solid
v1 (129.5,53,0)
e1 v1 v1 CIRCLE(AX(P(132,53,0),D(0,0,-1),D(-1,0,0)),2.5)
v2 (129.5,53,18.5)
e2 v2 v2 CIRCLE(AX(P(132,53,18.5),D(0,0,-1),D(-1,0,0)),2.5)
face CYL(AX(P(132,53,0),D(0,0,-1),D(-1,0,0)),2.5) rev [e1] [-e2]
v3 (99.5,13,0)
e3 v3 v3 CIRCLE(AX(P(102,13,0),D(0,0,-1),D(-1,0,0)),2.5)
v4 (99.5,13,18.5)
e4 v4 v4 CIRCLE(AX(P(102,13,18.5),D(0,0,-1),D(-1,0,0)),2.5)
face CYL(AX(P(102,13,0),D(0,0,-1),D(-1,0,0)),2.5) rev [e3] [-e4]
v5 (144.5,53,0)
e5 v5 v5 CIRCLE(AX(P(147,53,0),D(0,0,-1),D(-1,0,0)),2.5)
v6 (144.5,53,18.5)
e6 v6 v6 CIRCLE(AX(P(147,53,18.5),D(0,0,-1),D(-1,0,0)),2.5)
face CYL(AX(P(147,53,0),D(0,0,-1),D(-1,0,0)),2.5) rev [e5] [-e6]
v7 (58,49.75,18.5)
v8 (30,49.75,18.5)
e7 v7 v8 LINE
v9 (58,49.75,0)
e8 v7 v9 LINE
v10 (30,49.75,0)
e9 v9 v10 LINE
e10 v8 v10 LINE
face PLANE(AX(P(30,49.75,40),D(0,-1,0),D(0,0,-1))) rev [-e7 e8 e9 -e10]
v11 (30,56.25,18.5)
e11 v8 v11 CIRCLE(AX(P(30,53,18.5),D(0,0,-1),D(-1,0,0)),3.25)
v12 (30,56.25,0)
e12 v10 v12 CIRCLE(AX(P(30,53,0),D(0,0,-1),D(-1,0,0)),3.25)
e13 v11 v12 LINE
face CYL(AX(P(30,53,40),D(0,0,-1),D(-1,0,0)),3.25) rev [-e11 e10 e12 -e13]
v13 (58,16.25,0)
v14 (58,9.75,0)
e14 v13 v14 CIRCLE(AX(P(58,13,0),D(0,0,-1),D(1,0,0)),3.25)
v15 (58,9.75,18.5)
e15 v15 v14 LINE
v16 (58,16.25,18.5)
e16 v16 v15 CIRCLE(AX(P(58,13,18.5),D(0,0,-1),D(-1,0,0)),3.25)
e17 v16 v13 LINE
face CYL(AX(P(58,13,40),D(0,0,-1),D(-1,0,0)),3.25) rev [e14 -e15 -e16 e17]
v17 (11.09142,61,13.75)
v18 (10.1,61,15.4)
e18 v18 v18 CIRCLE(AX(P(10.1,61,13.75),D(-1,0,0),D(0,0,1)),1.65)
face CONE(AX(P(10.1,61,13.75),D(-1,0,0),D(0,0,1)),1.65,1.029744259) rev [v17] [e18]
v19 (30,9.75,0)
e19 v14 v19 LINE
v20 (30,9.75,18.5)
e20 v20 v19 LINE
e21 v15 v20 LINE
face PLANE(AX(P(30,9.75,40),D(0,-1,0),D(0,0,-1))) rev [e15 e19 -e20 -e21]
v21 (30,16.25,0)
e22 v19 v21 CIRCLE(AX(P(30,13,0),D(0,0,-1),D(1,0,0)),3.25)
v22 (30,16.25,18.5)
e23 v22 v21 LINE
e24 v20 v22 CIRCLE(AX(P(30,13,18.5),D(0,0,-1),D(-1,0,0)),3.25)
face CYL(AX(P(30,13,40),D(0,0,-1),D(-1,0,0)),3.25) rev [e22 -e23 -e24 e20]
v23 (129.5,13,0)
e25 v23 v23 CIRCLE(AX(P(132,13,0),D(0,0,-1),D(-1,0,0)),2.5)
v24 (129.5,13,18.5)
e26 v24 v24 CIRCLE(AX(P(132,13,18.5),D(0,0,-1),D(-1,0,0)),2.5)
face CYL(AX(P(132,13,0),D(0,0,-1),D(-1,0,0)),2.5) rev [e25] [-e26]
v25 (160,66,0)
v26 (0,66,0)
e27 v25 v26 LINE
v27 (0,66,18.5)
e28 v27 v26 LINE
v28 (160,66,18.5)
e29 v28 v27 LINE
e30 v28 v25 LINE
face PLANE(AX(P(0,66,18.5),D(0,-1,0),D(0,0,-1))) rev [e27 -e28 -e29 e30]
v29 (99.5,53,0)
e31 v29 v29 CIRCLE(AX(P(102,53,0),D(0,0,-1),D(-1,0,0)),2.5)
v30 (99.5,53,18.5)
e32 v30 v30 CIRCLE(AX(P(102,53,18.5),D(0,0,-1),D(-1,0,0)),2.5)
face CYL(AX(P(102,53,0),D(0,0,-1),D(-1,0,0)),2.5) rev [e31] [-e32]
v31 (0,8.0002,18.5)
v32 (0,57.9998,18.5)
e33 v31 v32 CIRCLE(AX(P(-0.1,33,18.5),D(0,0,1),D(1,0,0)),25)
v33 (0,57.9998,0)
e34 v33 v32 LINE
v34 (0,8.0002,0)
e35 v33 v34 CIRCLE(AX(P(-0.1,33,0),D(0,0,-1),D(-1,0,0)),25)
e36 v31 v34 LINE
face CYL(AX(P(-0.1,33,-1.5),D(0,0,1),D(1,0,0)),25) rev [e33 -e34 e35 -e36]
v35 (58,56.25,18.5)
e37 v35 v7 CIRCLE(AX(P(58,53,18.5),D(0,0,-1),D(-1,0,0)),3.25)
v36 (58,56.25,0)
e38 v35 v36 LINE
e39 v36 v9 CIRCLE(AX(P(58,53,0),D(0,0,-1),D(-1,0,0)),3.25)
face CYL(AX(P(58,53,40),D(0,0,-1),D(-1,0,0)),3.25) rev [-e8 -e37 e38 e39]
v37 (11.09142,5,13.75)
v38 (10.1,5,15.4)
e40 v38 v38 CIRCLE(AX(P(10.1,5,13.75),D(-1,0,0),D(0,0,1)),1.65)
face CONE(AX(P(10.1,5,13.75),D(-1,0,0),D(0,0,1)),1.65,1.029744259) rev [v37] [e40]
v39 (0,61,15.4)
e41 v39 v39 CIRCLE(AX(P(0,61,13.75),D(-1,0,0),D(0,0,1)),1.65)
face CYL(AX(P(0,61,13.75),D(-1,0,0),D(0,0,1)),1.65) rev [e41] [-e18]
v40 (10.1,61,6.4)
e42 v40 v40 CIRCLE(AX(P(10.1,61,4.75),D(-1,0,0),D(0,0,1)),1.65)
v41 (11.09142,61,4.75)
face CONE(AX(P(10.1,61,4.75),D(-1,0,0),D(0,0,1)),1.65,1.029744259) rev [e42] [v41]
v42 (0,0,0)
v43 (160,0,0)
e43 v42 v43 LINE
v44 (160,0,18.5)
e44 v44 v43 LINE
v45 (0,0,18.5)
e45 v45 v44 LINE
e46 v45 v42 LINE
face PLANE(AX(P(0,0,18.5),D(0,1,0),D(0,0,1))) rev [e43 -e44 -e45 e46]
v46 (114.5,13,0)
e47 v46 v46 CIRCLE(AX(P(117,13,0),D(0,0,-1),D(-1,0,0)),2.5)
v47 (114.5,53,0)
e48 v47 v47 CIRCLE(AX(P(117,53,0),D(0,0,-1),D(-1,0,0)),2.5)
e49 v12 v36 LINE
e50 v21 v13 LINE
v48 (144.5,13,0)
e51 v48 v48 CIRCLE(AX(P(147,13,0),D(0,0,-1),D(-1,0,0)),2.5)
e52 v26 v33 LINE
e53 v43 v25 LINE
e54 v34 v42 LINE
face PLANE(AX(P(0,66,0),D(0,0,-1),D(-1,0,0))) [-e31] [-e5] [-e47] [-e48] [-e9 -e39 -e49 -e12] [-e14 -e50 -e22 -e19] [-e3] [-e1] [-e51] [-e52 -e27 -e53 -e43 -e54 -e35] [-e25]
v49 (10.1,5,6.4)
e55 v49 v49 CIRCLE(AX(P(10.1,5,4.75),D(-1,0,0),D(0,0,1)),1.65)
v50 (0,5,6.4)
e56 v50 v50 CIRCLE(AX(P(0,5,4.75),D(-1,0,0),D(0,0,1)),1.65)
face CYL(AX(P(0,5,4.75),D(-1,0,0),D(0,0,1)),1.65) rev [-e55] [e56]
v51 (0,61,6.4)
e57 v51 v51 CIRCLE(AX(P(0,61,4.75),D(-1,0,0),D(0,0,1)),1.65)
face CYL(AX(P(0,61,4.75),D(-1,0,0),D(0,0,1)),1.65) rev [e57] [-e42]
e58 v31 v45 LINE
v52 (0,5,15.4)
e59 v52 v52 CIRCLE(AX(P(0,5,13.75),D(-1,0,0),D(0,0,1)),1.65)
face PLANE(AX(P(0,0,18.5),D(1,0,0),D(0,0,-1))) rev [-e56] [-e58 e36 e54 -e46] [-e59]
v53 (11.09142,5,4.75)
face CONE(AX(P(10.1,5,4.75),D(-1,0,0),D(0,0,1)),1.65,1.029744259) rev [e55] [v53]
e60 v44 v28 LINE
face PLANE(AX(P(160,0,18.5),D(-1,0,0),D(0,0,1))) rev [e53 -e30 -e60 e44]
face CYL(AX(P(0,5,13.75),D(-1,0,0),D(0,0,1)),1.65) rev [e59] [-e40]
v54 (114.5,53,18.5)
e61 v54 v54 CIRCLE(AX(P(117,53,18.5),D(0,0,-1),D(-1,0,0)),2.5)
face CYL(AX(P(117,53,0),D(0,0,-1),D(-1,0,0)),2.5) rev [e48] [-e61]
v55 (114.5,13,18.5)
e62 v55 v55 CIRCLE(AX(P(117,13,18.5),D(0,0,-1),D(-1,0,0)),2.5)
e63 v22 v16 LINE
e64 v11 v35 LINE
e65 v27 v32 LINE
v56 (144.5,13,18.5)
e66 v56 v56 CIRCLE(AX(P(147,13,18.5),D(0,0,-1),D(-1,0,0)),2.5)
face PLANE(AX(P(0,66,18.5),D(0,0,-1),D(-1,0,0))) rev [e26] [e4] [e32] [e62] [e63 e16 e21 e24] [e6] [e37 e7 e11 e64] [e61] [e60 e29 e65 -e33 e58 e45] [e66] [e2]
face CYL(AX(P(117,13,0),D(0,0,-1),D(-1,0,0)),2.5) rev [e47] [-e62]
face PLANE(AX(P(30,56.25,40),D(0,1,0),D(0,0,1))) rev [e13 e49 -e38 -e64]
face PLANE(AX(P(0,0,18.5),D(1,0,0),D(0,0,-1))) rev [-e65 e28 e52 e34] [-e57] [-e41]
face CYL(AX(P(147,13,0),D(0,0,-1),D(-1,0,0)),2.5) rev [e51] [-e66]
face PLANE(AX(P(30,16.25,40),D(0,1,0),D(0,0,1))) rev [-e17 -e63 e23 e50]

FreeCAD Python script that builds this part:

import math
import FreeCAD as App
import Part
import Sketcher
from FreeCAD import Vector

doc = App.newDocument("Part")
params = doc.addObject("Spreadsheet::Sheet", "Params")
for row, (alias, value) in enumerate([
    ("sketch1_width", "160 mm"),
    ("sketch1_height", "66 mm"),
    ("pad1_length", "18.5 mm"),
    ("sketch2_diameter", "50 mm"),
    ("pocket1_length", "20 mm"),
    ("sketch3_diameter", "5 mm"),
    ("hole_diameter", "5 mm"),
    ("linearpattern_pitch", "15 mm"),
    ("sketch4_width", "28 mm"),
    ("sketch4_radius", "3.25 mm"),
    ("pocket2_length", "40 mm"),
    ("sketch5_diameter", "3.3 mm"),
    ("hole2_diameter", "3.3 mm"),
    ("hole2_depth", "10.1 mm"),
], start=1):
    params.set(f"A{row}", alias)
    params.set(f"B{row}", "=" + value)
    params.setAlias(f"B{row}", alias)

body = doc.addObject("PartDesign::Body", "Body")

sketch1 = doc.addObject("Sketcher::SketchObject", "Sketch")
body.addObject(sketch1)
sketch1.AttachmentSupport = (doc.XY_Plane, [""])
sketch1.MapMode = "FlatFace"
sketch1.addGeometry([
    Part.LineSegment(Vector(0, 66, 0), Vector(0, 0, 0)),
    Part.LineSegment(Vector(0, 0, 0), Vector(160, 0, 0)),
    Part.LineSegment(Vector(160, 0, 0), Vector(160, 66, 0)),
    Part.LineSegment(Vector(160, 66, 0), Vector(0, 66, 0)),
], False)
sketch1.addConstraint([
    Sketcher.Constraint("Coincident", 0, 2, 1, 1),
    Sketcher.Constraint("Coincident", 1, 2, 2, 1),
    Sketcher.Constraint("Coincident", 2, 2, 3, 1),
    Sketcher.Constraint("Coincident", 3, 2, 0, 1),
    Sketcher.Constraint("Vertical", 0),
    Sketcher.Constraint("Horizontal", 1),
    Sketcher.Constraint("Vertical", 2),
    Sketcher.Constraint("Horizontal", 3),
    Sketcher.Constraint("Coincident", 0, 2, -1, 1),
    Sketcher.Constraint("DistanceX", 1, 1, 1, 2, 160.0),
    Sketcher.Constraint("DistanceY", 0, 2, 0, 1, 66.0),
])
sketch1.setExpression("Constraints[9]", "Params.sketch1_width")
sketch1.setExpression("Constraints[10]", "Params.sketch1_height")
pad1 = doc.addObject("PartDesign::Pad", "Pad")
body.addObject(pad1)
pad1.Profile = sketch1
pad1.setExpression("Length", "Params.pad1_length")

sketch2 = doc.addObject("Sketcher::SketchObject", "Sketch001")
body.addObject(sketch2)
sketch2.AttachmentSupport = (doc.XY_Plane, [""])
sketch2.MapMode = "FlatFace"
sketch2.AttachmentOffset = App.Placement(Vector(0, 0, 18.5), App.Rotation())
sketch2.addGeometry(Part.Circle(Vector(-0.1, 33, 0), Vector(0, 0, 1), 25), False)
sketch2.addConstraint([
    Sketcher.Constraint("Diameter", 0, 50.0),
    Sketcher.Constraint("DistanceY", -1, 1, 0, 3, 33.0),
    Sketcher.Constraint("DistanceX", 0, 3, -1, 1, 0.1),
])
sketch2.setExpression("Constraints[0]", "Params.sketch2_diameter")
pocket1 = doc.addObject("PartDesign::Pocket", "Pocket")
body.addObject(pocket1)
pocket1.Profile = sketch2
pocket1.setExpression("Length", "Params.pocket1_length")

sketch3 = doc.addObject("Sketcher::SketchObject", "Sketch002")
body.addObject(sketch3)
sketch3.AttachmentSupport = (doc.XY_Plane, [""])
sketch3.MapMode = "FlatFace"
sketch3.addGeometry([
    Part.Circle(Vector(147, 53, 0), Vector(0, 0, 1), 2.5),
    Part.Circle(Vector(147, 13, 0), Vector(0, 0, 1), 2.5),
], False)
sketch3.addConstraint([
    Sketcher.Constraint("Equal", 0, 1),
    Sketcher.Constraint("Vertical", 0, 3, 1, 3),
    Sketcher.Constraint("Diameter", 0, 5.0),
    Sketcher.Constraint("DistanceX", -1, 1, 0, 3, 147.0),
    Sketcher.Constraint("DistanceY", -1, 1, 0, 3, 53.0),
    Sketcher.Constraint("DistanceY", -1, 1, 1, 3, 13.0),
])
sketch3.setExpression("Constraints[2]", "Params.sketch3_diameter")
doc.recompute()
hole = doc.addObject("PartDesign::Hole", "Hole")
body.addObject(hole)
hole.Profile = sketch3
hole.ThreadType = "None"
hole.setExpression("Diameter", "Params.hole_diameter")
hole.DepthType = "ThroughAll"
hole.Reversed = True
doc.recompute()

linearpattern = doc.addObject("PartDesign::LinearPattern", "LinearPattern")
body.addObject(linearpattern)
linearpattern.Originals = [hole]
linearpattern.Direction = (doc.X_Axis, [""])
linearpattern.Mode = "offset"
linearpattern.setExpression("Offset", "Params.linearpattern_pitch")
linearpattern.Occurrences = 4
linearpattern.Reversed = True
body.Tip = linearpattern

sketch4 = doc.addObject("Sketcher::SketchObject", "Sketch003")
body.addObject(sketch4)
sketch4.AttachmentSupport = (doc.XY_Plane, [""])
sketch4.MapMode = "FlatFace"
sketch4.addGeometry([
    Part.LineSegment(Vector(58, 49.75, 0), Vector(30, 49.75, 0)),
    Part.ArcOfCircle(Part.Circle(Vector(30, 53, 0), Vector(0, 0, 1), 3.25), math.radians(90), math.radians(270)),
    Part.LineSegment(Vector(30, 56.25, 0), Vector(58, 56.25, 0)),
    Part.ArcOfCircle(Part.Circle(Vector(58, 53, 0), Vector(0, 0, 1), 3.25), math.radians(-90), math.radians(90)),
    Part.LineSegment(Vector(30, 16.25, 0), Vector(58, 16.25, 0)),
    Part.ArcOfCircle(Part.Circle(Vector(58, 13, 0), Vector(0, 0, 1), 3.25), math.radians(-90), math.radians(90)),
    Part.LineSegment(Vector(58, 9.75, 0), Vector(30, 9.75, 0)),
    Part.ArcOfCircle(Part.Circle(Vector(30, 13, 0), Vector(0, 0, 1), 3.25), math.radians(90), math.radians(270)),
], False)
sketch4.addConstraint([
    Sketcher.Constraint("Tangent", 0, 2, 1, 2),
    Sketcher.Constraint("Tangent", 1, 1, 2, 1),
    Sketcher.Constraint("Tangent", 2, 2, 3, 2),
    Sketcher.Constraint("Tangent", 3, 1, 0, 1),
    Sketcher.Constraint("Tangent", 4, 2, 5, 2),
    Sketcher.Constraint("Tangent", 5, 1, 6, 1),
    Sketcher.Constraint("Tangent", 6, 2, 7, 2),
    Sketcher.Constraint("Tangent", 7, 1, 4, 1),
    Sketcher.Constraint("Horizontal", 0),
    Sketcher.Constraint("Horizontal", 2),
    Sketcher.Constraint("Horizontal", 4),
    Sketcher.Constraint("Horizontal", 6),
    Sketcher.Constraint("Equal", 3, 5),
    Sketcher.Constraint("Vertical", 3, 3, 5, 3),
    Sketcher.Constraint("Vertical", 1, 3, 7, 3),
    Sketcher.Constraint("DistanceX", 0, 2, 0, 1, 28.0),
    Sketcher.Constraint("Radius", 1, 3.25),
    Sketcher.Constraint("DistanceX", -1, 1, 1, 3, 30.0),
    Sketcher.Constraint("DistanceY", -1, 1, 1, 3, 53.0),
    Sketcher.Constraint("DistanceY", -1, 1, 5, 3, 13.0),
])
sketch4.setExpression("Constraints[15]", "Params.sketch4_width")
sketch4.setExpression("Constraints[16]", "Params.sketch4_radius")
pocket2 = doc.addObject("PartDesign::Pocket", "Pocket001")
body.addObject(pocket2)
pocket2.Profile = sketch4
pocket2.setExpression("Length", "Params.pocket2_length")
pocket2.Reversed = True

sketch5 = doc.addObject("Sketcher::SketchObject", "Sketch004")
body.addObject(sketch5)
sketch5.AttachmentSupport = (doc.YZ_Plane, [""])
sketch5.MapMode = "FlatFace"
sketch5.addGeometry([
    Part.Circle(Vector(5, 4.75, 0), Vector(0, 0, 1), 1.65),
    Part.Circle(Vector(5, 13.75, 0), Vector(0, 0, 1), 1.65),
    Part.Circle(Vector(61, 4.75, 0), Vector(0, 0, 1), 1.65),
    Part.Circle(Vector(61, 13.75, 0), Vector(0, 0, 1), 1.65),
], False)
sketch5.addConstraint([
    Sketcher.Constraint("Equal", 0, 1),
    Sketcher.Constraint("Equal", 1, 2),
    Sketcher.Constraint("Equal", 2, 3),
    Sketcher.Constraint("Horizontal", 0, 3, 2, 3),
    Sketcher.Constraint("Horizontal", 1, 3, 3, 3),
    Sketcher.Constraint("Vertical", 0, 3, 1, 3),
    Sketcher.Constraint("Vertical", 2, 3, 3, 3),
    Sketcher.Constraint("Diameter", 0, 3.3),
    Sketcher.Constraint("DistanceX", -1, 1, 0, 3, 5.0),
    Sketcher.Constraint("DistanceX", -1, 1, 2, 3, 61.0),
    Sketcher.Constraint("DistanceY", 0, 3, 1, 3, 9.0),
    Sketcher.Constraint("DistanceY", -1, 1, 0, 3, 4.75),
])
sketch5.setExpression("Constraints[7]", "Params.sketch5_diameter")
doc.recompute()
hole2 = doc.addObject("PartDesign::Hole", "Hole001")
body.addObject(hole2)
hole2.Profile = sketch5
hole2.ThreadType = "None"
hole2.setExpression("Diameter", "Params.hole2_diameter")
hole2.DepthType = "Dimension"
hole2.setExpression("Depth", "Params.hole2_depth")
hole2.DrillPoint = "Angled"
hole2.DrillPointAngle = 118
hole2.Reversed = True

doc.recompute()
